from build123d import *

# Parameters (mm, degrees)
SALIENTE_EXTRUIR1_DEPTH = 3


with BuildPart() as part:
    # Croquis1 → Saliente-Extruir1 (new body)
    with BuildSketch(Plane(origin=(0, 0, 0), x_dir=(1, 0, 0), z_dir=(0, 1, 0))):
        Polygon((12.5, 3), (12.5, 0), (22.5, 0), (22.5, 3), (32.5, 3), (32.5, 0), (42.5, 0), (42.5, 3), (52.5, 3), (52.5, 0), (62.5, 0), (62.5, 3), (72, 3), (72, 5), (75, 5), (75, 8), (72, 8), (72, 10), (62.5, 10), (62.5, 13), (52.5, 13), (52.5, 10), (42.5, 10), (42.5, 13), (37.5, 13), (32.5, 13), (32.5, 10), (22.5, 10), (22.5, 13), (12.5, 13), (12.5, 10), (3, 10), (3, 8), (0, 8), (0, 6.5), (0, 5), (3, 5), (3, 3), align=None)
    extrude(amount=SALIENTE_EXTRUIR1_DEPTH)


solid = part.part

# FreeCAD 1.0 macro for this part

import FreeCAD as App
import Part
import Sketcher
from FreeCAD import Vector


def add_polygon(sketch, points):
    """Adds a closed chain of lines whose ends are joined by coincident constraints."""
    first, n = sketch.GeometryCount, len(points)
    for a, b in zip(points, points[1:] + points[:1]):
        sketch.addGeometry(Part.LineSegment(App.Vector(*a, 0), App.Vector(*b, 0)), False)
    for i in range(n):
        sketch.addConstraint(Sketcher.Constraint("Coincident", first + i, 2, first + (i + 1) % n, 1))

doc = App.newDocument("Part")
body = doc.addObject("PartDesign::Body", "Body")

sketch1 = doc.addObject("Sketcher::SketchObject", "Sketch")
body.addObject(sketch1)
sketch1.AttachmentSupport = (doc.XZ_Plane, [""])
sketch1.MapMode = "FlatFace"
add_polygon(sketch1, [(12.5, -3), (12.5, 0), (22.5, 0), (22.5, -3), (32.5, -3), (32.5, 0), (42.5, 0), (42.5, -3), (52.5, -3), (52.5, 0), (62.5, 0), (62.5, -3), (72, -3), (72, -5), (75, -5), (75, -8), (72, -8), (72, -10), (62.5, -10), (62.5, -13), (52.5, -13), (52.5, -10), (42.5, -10), (42.5, -13), (32.5, -13), (32.5, -10), (22.5, -10), (22.5, -13), (12.5, -13), (12.5, -10), (3, -10), (3, -8), (0, -8), (0, -5), (3, -5), (3, -3)])
sketch1.addConstraint(Sketcher.Constraint("Vertical", 0))
sketch1.addConstraint(Sketcher.Constraint("Horizontal", 1))
sketch1.addConstraint(Sketcher.Constraint("Vertical", 2))
sketch1.addConstraint(Sketcher.Constraint("Horizontal", 3))
sketch1.addConstraint(Sketcher.Constraint("Vertical", 4))
sketch1.addConstraint(Sketcher.Constraint("Horizontal", 5))
sketch1.addConstraint(Sketcher.Constraint("Vertical", 6))
sketch1.addConstraint(Sketcher.Constraint("Horizontal", 7))
sketch1.addConstraint(Sketcher.Constraint("Vertical", 8))
sketch1.addConstraint(Sketcher.Constraint("Horizontal", 9))
sketch1.addConstraint(Sketcher.Constraint("Vertical", 10))
sketch1.addConstraint(Sketcher.Constraint("Horizontal", 11))
sketch1.addConstraint(Sketcher.Constraint("Vertical", 12))
sketch1.addConstraint(Sketcher.Constraint("Horizontal", 13))
sketch1.addConstraint(Sketcher.Constraint("Vertical", 14))
sketch1.addConstraint(Sketcher.Constraint("Horizontal", 15))
sketch1.addConstraint(Sketcher.Constraint("Vertical", 16))
sketch1.addConstraint(Sketcher.Constraint("Horizontal", 17))
sketch1.addConstraint(Sketcher.Constraint("Vertical", 18))
sketch1.addConstraint(Sketcher.Constraint("Horizontal", 19))
sketch1.addConstraint(Sketcher.Constraint("Vertical", 20))
sketch1.addConstraint(Sketcher.Constraint("Horizontal", 21))
sketch1.addConstraint(Sketcher.Constraint("Vertical", 22))
sketch1.addConstraint(Sketcher.Constraint("Horizontal", 23))
sketch1.addConstraint(Sketcher.Constraint("Vertical", 24))
sketch1.addConstraint(Sketcher.Constraint("Horizontal", 25))
sketch1.addConstraint(Sketcher.Constraint("Vertical", 26))
sketch1.addConstraint(Sketcher.Constraint("Horizontal", 27))
sketch1.addConstraint(Sketcher.Constraint("Vertical", 28))
sketch1.addConstraint(Sketcher.Constraint("Horizontal", 29))
sketch1.addConstraint(Sketcher.Constraint("Vertical", 30))
sketch1.addConstraint(Sketcher.Constraint("Horizontal", 31))
sketch1.addConstraint(Sketcher.Constraint("Vertical", 32))
sketch1.addConstraint(Sketcher.Constraint("Horizontal", 33))
sketch1.addConstraint(Sketcher.Constraint("Vertical", 34))
sketch1.addConstraint(Sketcher.Constraint("Horizontal", 35))
sketch1.addConstraint(Sketcher.Constraint("PointOnObject", 0, 2, -1))
sketch1.addConstraint(Sketcher.Constraint("PointOnObject", 4, 2, -1))
sketch1.addConstraint(Sketcher.Constraint("PointOnObject", 8, 2, -1))
sketch1.addConstraint(Sketcher.Constraint("PointOnObject", 31, 2, -2))
sketch1.addConstraint(Sketcher.Constraint("Horizontal", 3, 2, 6, 2))
sketch1.addConstraint(Sketcher.Constraint("Horizontal", 7, 2, 10, 2))
sketch1.addConstraint(Sketcher.Constraint("Horizontal", 17, 2, 20, 2))
sketch1.addConstraint(Sketcher.Constraint("Horizontal", 19, 2, 22, 2))
sketch1.addConstraint(Sketcher.Constraint("Horizontal", 21, 2, 24, 2))
sketch1.addConstraint(Sketcher.Constraint("Horizontal", 23, 2, 26, 2))
sketch1.addConstraint(Sketcher.Constraint("Horizontal", 25, 2, 28, 2))
sketch1.addConstraint(Sketcher.Constraint("Horizontal", 15, 2, 30, 2))
sketch1.addConstraint(Sketcher.Constraint("Horizontal", 13, 2, 32, 2))
sketch1.addConstraint(Sketcher.Constraint("Horizontal", 11, 2, 34, 2))
sketch1.addConstraint(Sketcher.Constraint("Vertical", 12, 2, 15, 2))
sketch1.addConstraint(Sketcher.Constraint("Vertical", 10, 2, 17, 2))
sketch1.addConstraint(Sketcher.Constraint("Vertical", 8, 2, 19, 2))
sketch1.addConstraint(Sketcher.Constraint("Vertical", 6, 2, 21, 2))
sketch1.addConstraint(Sketcher.Constraint("Vertical", 4, 2, 23, 2))
sketch1.addConstraint(Sketcher.Constraint("Vertical", 2, 2, 25, 2))
sketch1.addConstraint(Sketcher.Constraint("Vertical", 0, 2, 27, 2))
sketch1.addConstraint(Sketcher.Constraint("Vertical", 30, 2, 33, 2))
sketch1.addConstraint(Sketcher.Constraint("Equal", 1, 3))
sketch1.addConstraint(Sketcher.Constraint("Equal", 3, 5))
sketch1.addConstraint(Sketcher.Constraint("Equal", 5, 7))
sketch1.addConstraint(Sketcher.Constraint("Equal", 7, 9))
sketch1.addConstraint(Sketcher.Constraint("Equal", 17, 29))
sketch1.addConstraint(Sketcher.Constraint("Equal", 15, 31))
sketch1.addConstraint(Sketcher.Constraint("Equal", 33, 0))
sketch1.addConstraint(Sketcher.Constraint("Equal", 10, 14))
sketch1.addConstraint(Sketcher.Constraint("Equal", 12, 16))
sketch1.addConstraint(Sketcher.Constraint("Equal", 14, 18))
sketch1.addConstraint(Sketcher.Constraint("DistanceX", 1, 1, 1, 2, 10.0))
sketch1.addConstraint(Sketcher.Constraint("DistanceX", 13, 1, 13, 2, 3.0))
sketch1.addConstraint(Sketcher.Constraint("DistanceY", 12, 2, 12, 1, 2.0))
sketch1.addConstraint(Sketcher.Constraint("DistanceX", 11, 1, 11, 2, 9.5))
pad1 = doc.addObject("PartDesign::Pad", "Pad")
body.addObject(pad1)
pad1.Profile = sketch1
pad1.Length = 3
pad1.Reversed = True

doc.recompute()
